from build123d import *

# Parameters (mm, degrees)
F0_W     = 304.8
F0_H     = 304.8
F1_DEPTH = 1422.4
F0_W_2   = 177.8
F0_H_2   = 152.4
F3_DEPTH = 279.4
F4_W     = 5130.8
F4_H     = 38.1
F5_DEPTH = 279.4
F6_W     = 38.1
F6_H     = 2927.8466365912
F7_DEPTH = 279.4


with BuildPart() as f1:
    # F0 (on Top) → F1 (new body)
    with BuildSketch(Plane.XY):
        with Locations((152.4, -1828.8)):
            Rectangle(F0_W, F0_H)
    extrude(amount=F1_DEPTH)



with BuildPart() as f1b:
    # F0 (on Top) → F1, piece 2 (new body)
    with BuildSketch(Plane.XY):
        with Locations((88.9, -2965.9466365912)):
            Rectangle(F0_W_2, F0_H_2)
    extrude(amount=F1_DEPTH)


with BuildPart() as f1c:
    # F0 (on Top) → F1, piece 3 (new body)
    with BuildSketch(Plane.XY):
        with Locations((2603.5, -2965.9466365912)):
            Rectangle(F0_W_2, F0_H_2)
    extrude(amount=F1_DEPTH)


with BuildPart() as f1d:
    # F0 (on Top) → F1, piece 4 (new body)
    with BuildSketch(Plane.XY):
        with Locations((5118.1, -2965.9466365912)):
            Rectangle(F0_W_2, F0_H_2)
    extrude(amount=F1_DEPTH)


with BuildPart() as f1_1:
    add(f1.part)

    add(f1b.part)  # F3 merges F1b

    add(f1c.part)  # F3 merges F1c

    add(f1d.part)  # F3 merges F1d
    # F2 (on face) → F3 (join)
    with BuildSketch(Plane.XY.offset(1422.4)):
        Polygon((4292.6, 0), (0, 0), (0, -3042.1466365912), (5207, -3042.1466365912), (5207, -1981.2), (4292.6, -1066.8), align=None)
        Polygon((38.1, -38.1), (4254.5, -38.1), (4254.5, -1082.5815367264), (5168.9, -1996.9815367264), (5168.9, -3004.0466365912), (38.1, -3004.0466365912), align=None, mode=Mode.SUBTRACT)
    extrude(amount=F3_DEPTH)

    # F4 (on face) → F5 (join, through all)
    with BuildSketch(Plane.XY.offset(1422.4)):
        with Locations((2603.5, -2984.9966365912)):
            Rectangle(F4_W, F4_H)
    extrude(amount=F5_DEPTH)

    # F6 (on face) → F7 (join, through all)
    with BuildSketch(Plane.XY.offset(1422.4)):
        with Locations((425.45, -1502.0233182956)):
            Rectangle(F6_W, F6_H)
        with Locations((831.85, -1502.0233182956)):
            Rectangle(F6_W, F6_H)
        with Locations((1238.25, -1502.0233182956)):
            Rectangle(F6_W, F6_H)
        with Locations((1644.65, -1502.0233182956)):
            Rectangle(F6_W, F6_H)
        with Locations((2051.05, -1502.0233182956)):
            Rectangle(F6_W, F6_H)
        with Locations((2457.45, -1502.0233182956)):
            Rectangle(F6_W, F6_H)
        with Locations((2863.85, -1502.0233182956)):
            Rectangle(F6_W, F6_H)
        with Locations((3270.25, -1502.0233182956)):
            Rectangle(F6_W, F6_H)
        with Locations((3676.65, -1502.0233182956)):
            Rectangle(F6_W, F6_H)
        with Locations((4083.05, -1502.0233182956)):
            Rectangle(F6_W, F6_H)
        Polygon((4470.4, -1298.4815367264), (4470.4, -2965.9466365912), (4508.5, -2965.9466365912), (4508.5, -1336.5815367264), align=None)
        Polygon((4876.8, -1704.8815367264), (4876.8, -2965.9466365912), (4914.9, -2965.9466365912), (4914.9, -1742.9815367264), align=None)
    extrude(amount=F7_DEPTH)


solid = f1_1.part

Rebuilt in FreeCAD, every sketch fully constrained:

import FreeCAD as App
import Part
import Sketcher
Q = App.Units.Quantity


def add_polygon(sketch, points):
    """Adds a closed chain of lines whose ends are joined by coincident constraints."""
    first, n = sketch.GeometryCount, len(points)
    for a, b in zip(points, points[1:] + points[:1]):
        sketch.addGeometry(Part.LineSegment(App.Vector(*a, 0), App.Vector(*b, 0)), False)
    for i in range(n):
        sketch.addConstraint(Sketcher.Constraint("Coincident", first + i, 2, first + (i + 1) % n, 1))

doc = App.newDocument("Part")
body = doc.addObject("PartDesign::Body", "Body")

sketch1 = doc.addObject("Sketcher::SketchObject", "Sketch")
body.addObject(sketch1)
sketch1.AttachmentSupport = (doc.XY_Plane, [""])
sketch1.MapMode = "FlatFace"
add_polygon(sketch1, [(0, -1676), (0, -1981), (305, -1981), (305, -1676)])
sketch1.addConstraint([
    Sketcher.Constraint("Vertical", 0),
    Sketcher.Constraint("Horizontal", 1),
    Sketcher.Constraint("Vertical", 2),
    Sketcher.Constraint("Horizontal", 3),
    Sketcher.Constraint("PointOnObject", 0, 2, -2),
    Sketcher.Constraint("Equal", 3, 0),
    Sketcher.Constraint("DistanceX", 1, 1, 1, 2, Q("12 in")),
    Sketcher.Constraint("DistanceY", 0, 2, -1, 1, Q("78 in")),
])
pad1 = doc.addObject("PartDesign::Pad", "Pad")
body.addObject(pad1)
pad1.Profile = sketch1
pad1.Length = Q("56 in")
body2 = doc.addObject("PartDesign::Body", "Body001")

sketch2 = doc.addObject("Sketcher::SketchObject", "Sketch001")
body2.addObject(sketch2)
sketch2.AttachmentSupport = (doc.getObject("XY_Plane001"), [""])
sketch2.MapMode = "FlatFace"
add_polygon(sketch2, [(0, -2890), (0, -3042), (178, -3042), (178, -2890)])
sketch2.addConstraint([
    Sketcher.Constraint("Vertical", 0),
    Sketcher.Constraint("Horizontal", 1),
    Sketcher.Constraint("Vertical", 2),
    Sketcher.Constraint("Horizontal", 3),
    Sketcher.Constraint("PointOnObject", 0, 2, -2),
    Sketcher.Constraint("DistanceX", 1, 1, 1, 2, Q("7 in")),
    Sketcher.Constraint("DistanceY", 0, 2, 0, 1, Q("6 in")),
    Sketcher.Constraint("DistanceY", 0, 2, -1, 1, Q("3042.146637 mm")),
])
pad2 = doc.addObject("PartDesign::Pad", "Pad001")
body2.addObject(pad2)
pad2.Profile = sketch2
pad2.Length = Q("56 in")
body3 = doc.addObject("PartDesign::Body", "Body002")

sketch3 = doc.addObject("Sketcher::SketchObject", "Sketch002")
body3.addObject(sketch3)
sketch3.AttachmentSupport = (doc.getObject("XY_Plane002"), [""])
sketch3.MapMode = "FlatFace"
add_polygon(sketch3, [(2515, -2890), (2515, -3042), (2692, -3042), (2692, -2890)])
sketch3.addConstraint([
    Sketcher.Constraint("Vertical", 0),
    Sketcher.Constraint("Horizontal", 1),
    Sketcher.Constraint("Vertical", 2),
    Sketcher.Constraint("Horizontal", 3),
    Sketcher.Constraint("DistanceX", 1, 1, 1, 2, Q("7 in")),
    Sketcher.Constraint("DistanceY", 0, 2, 0, 1, Q("6 in")),
    Sketcher.Constraint("DistanceX", -1, 1, 0, 2, Q("99 in")),
    Sketcher.Constraint("DistanceY", 0, 2, -1, 1, Q("3042.146637 mm")),
])
pad3 = doc.addObject("PartDesign::Pad", "Pad002")
body3.addObject(pad3)
pad3.Profile = sketch3
pad3.Length = Q("56 in")
body4 = doc.addObject("PartDesign::Body", "Body003")

sketch4 = doc.addObject("Sketcher::SketchObject", "Sketch003")
body4.addObject(sketch4)
sketch4.AttachmentSupport = (doc.getObject("XY_Plane003"), [""])
sketch4.MapMode = "FlatFace"
add_polygon(sketch4, [(5029, -2890), (5029, -3042), (5207, -3042), (5207, -2890)])
sketch4.addConstraint([
    Sketcher.Constraint("Vertical", 0),
    Sketcher.Constraint("Horizontal", 1),
    Sketcher.Constraint("Vertical", 2),
    Sketcher.Constraint("Horizontal", 3),
    Sketcher.Constraint("DistanceX", 1, 1, 1, 2, Q("7 in")),
    Sketcher.Constraint("DistanceY", 0, 2, 0, 1, Q("6 in")),
    Sketcher.Constraint("DistanceX", -1, 1, 0, 2, Q("198 in")),
    Sketcher.Constraint("DistanceY", 0, 2, -1, 1, Q("3042.146637 mm")),
])
pad4 = doc.addObject("PartDesign::Pad", "Pad003")
body4.addObject(pad4)
pad4.Profile = sketch4
pad4.Length = Q("56 in")
body.AllowCompound = True
doc.recompute()

boolean = doc.addObject("PartDesign::Boolean", "Boolean")
body.addObject(boolean)
boolean.Type = "Fuse"
boolean.addObjects([body2])
doc.recompute()

boolean2 = doc.addObject("PartDesign::Boolean", "Boolean001")
body.addObject(boolean2)
boolean2.Type = "Fuse"
boolean2.addObjects([body3])
doc.recompute()

boolean3 = doc.addObject("PartDesign::Boolean", "Boolean002")
body.addObject(boolean3)
boolean3.Type = "Fuse"
boolean3.addObjects([body4])

sketch5 = doc.addObject("Sketcher::SketchObject", "Sketch004")
body.addObject(sketch5)
sketch5.AttachmentSupport = (doc.XY_Plane, [""])
sketch5.MapMode = "FlatFace"
sketch5.AttachmentOffset = App.Placement(App.Vector(0, 0, 56 * 25.4), App.Rotation())
add_polygon(sketch5, [(4293, 0), (0, 0), (0, -3042), (5207, -3042), (5207, -1981), (4293, -1067)])
add_polygon(sketch5, [(38, -3004), (38, -38), (4254, -38), (4254, -1083), (5169, -1997), (5169, -3004)])
sketch5.addConstraint([
    Sketcher.Constraint("Horizontal", 0),
    Sketcher.Constraint("Vertical", 1),
    Sketcher.Constraint("Horizontal", 2),
    Sketcher.Constraint("Vertical", 3),
    Sketcher.Constraint("Vertical", 5),
    Sketcher.Constraint("Vertical", 6),
    Sketcher.Constraint("Horizontal", 7),
    Sketcher.Constraint("Vertical", 8),
    Sketcher.Constraint("Vertical", 10),
    Sketcher.Constraint("Horizontal", 11),
    Sketcher.Constraint("Coincident", 0, 2, -1, 1),
    Sketcher.Constraint("Parallel", 4, 9),
    Sketcher.Constraint("Equal", 4, 9),
    Sketcher.Constraint("DistanceX", 0, 2, 0, 1, Q("169 in")),
    Sketcher.Constraint("DistanceX", 2, 1, 2, 2, Q("205 in")),
    Sketcher.Constraint("DistanceX", 7, 1, 7, 2, Q("166 in")),
    Sketcher.Constraint("DistanceY", 5, 1, 5, 2, Q("42 in")),
    Sketcher.Constraint("DistanceY", 3, 2, -1, 1, Q("78 in")),
    Sketcher.Constraint("DistanceX", -1, 1, 6, 2, Q("1.5 in")),
    Sketcher.Constraint("DistanceY", 6, 2, -1, 1, Q("1.5 in")),
    Sketcher.Constraint("DistanceY", 2, 2, 10, 2, Q("1.5 in")),
    Sketcher.Constraint("DistanceY", 10, 2, 10, 1, Q("1007.0651 mm")),
    Sketcher.Constraint("DistanceY", 1, 2, 1, 1, Q("3042.146637 mm")),
])
pad5 = doc.addObject("PartDesign::Pad", "Pad004")
body.addObject(pad5)
pad5.Profile = sketch5
pad5.Length = Q("11 in")

sketch6 = doc.addObject("Sketcher::SketchObject", "Sketch005")
body.addObject(sketch6)
sketch6.AttachmentSupport = (doc.XY_Plane, [""])
sketch6.MapMode = "FlatFace"
sketch6.AttachmentOffset = App.Placement(App.Vector(0, 0, 56 * 25.4), App.Rotation())
add_polygon(sketch6, [(38, -2966), (38, -3004), (5169, -3004), (5169, -2966)])
sketch6.addConstraint([
    Sketcher.Constraint("Vertical", 0),
    Sketcher.Constraint("Horizontal", 1),
    Sketcher.Constraint("Vertical", 2),
    Sketcher.Constraint("Horizontal", 3),
    Sketcher.Constraint("DistanceX", 1, 1, 1, 2, Q("202 in")),
    Sketcher.Constraint("DistanceY", 0, 2, 0, 1, Q("1.5 in")),
    Sketcher.Constraint("DistanceX", -1, 1, 0, 2, Q("1.5 in")),
    Sketcher.Constraint("DistanceY", 0, 2, -1, 1, Q("3004.046637 mm")),
])
pad6 = doc.addObject("PartDesign::Pad", "Pad005")
body.addObject(pad6)
pad6.Profile = sketch6
pad6.Length = Q("11 in")

sketch7 = doc.addObject("Sketcher::SketchObject", "Sketch006")
body.addObject(sketch7)
sketch7.AttachmentSupport = (doc.XY_Plane, [""])
sketch7.MapMode = "FlatFace"
sketch7.AttachmentOffset = App.Placement(App.Vector(0, 0, 56 * 25.4), App.Rotation())
add_polygon(sketch7, [(406, -38), (406, -2966), (444, -2966), (444, -38)])
add_polygon(sketch7, [(813, -38), (813, -2966), (851, -2966), (851, -38)])
add_polygon(sketch7, [(1219, -38), (1219, -2966), (1257, -2966), (1257, -38)])
add_polygon(sketch7, [(1626, -38), (1626, -2966), (1664, -2966), (1664, -38)])
add_polygon(sketch7, [(2032, -38), (2032, -2966), (2070, -2966), (2070, -38)])
add_polygon(sketch7, [(2438, -38), (2438, -2966), (2476, -2966), (2476, -38)])
add_polygon(sketch7, [(2845, -38), (2845, -2966), (2883, -2966), (2883, -38)])
add_polygon(sketch7, [(3251, -38), (3251, -2966), (3289, -2966), (3289, -38)])
add_polygon(sketch7, [(3658, -38), (3658, -2966), (3696, -2966), (3696, -38)])
add_polygon(sketch7, [(4064, -38), (4064, -2966), (4102, -2966), (4102, -38)])
add_polygon(sketch7, [(4470, -1298), (4470, -2966), (4508, -2966), (4508, -1337)])
add_polygon(sketch7, [(4877, -1705), (4877, -2966), (4915, -2966), (4915, -1743)])
sketch7.addConstraint([
    Sketcher.Constraint("Vertical", 0),
    Sketcher.Constraint("Horizontal", 1),
    Sketcher.Constraint("Vertical", 2),
    Sketcher.Constraint("Horizontal", 3),
    Sketcher.Constraint("Vertical", 4),
    Sketcher.Constraint("Horizontal", 5),
    Sketcher.Constraint("Vertical", 6),
    Sketcher.Constraint("Horizontal", 7),
    Sketcher.Constraint("Vertical", 8),
    Sketcher.Constraint("Horizontal", 9),
    Sketcher.Constraint("Vertical", 10),
    Sketcher.Constraint("Horizontal", 11),
    Sketcher.Constraint("Vertical", 12),
    Sketcher.Constraint("Horizontal", 13),
    Sketcher.Constraint("Vertical", 14),
    Sketcher.Constraint("Horizontal", 15),
    Sketcher.Constraint("Vertical", 16),
    Sketcher.Constraint("Horizontal", 17),
    Sketcher.Constraint("Vertical", 18),
    Sketcher.Constraint("Horizontal", 19),
    Sketcher.Constraint("Vertical", 20),
    Sketcher.Constraint("Horizontal", 21),
    Sketcher.Constraint("Vertical", 22),
    Sketcher.Constraint("Horizontal", 23),
    Sketcher.Constraint("Vertical", 24),
    Sketcher.Constraint("Horizontal", 25),
    Sketcher.Constraint("Vertical", 26),
    Sketcher.Constraint("Horizontal", 27),
    Sketcher.Constraint("Vertical", 28),
    Sketcher.Constraint("Horizontal", 29),
    Sketcher.Constraint("Vertical", 30),
    Sketcher.Constraint("Horizontal", 31),
    Sketcher.Constraint("Vertical", 32),
    Sketcher.Constraint("Horizontal", 33),
    Sketcher.Constraint("Vertical", 34),
    Sketcher.Constraint("Horizontal", 35),
    Sketcher.Constraint("Vertical", 36),
    Sketcher.Constraint("Horizontal", 37),
    Sketcher.Constraint("Vertical", 38),
    Sketcher.Constraint("Horizontal", 39),
    Sketcher.Constraint("Vertical", 40),
    Sketcher.Constraint("Horizontal", 41),
    Sketcher.Constraint("Vertical", 42),
    Sketcher.Constraint("Vertical", 44),
    Sketcher.Constraint("Horizontal", 45),
    Sketcher.Constraint("Vertical", 46),
    Sketcher.Constraint("Parallel", 43, 47),
    Sketcher.Constraint("Horizontal", 1, 2, 4, 2),
    Sketcher.Constraint("Horizontal", 3, 2, 6, 2),
    Sketcher.Constraint("Horizontal", 5, 2, 8, 2),
    Sketcher.Constraint("Horizontal", 7, 2, 10, 2),
    Sketcher.Constraint("Horizontal", 9, 2, 12, 2),
    Sketcher.Constraint("Horizontal", 11, 2, 14, 2),
    Sketcher.Constraint("Horizontal", 13, 2, 16, 2),
    Sketcher.Constraint("Horizontal", 15, 2, 18, 2),
    Sketcher.Constraint("Horizontal", 17, 2, 20, 2),
    Sketcher.Constraint("Horizontal", 19, 2, 22, 2),
    Sketcher.Constraint("Horizontal", 21, 2, 24, 2),
    Sketcher.Constraint("Horizontal", 23, 2, 26, 2),
    Sketcher.Constraint("Horizontal", 25, 2, 28, 2),
    Sketcher.Constraint("Horizontal", 27, 2, 30, 2),
    Sketcher.Constraint("Horizontal", 29, 2, 32, 2),
    Sketcher.Constraint("Horizontal", 31, 2, 34, 2),
    Sketcher.Constraint("Horizontal", 33, 2, 36, 2),
    Sketcher.Constraint("Horizontal", 35, 2, 38, 2),
    Sketcher.Constraint("Horizontal", 37, 2, 40, 2),
    Sketcher.Constraint("Horizontal", 41, 2, 44, 2),
    Sketcher.Constraint("Equal", 3, 5),
    Sketcher.Constraint("Equal", 7, 9),
    Sketcher.Constraint("Equal", 11, 13),
    Sketcher.Constraint("Equal", 15, 17),
    Sketcher.Constraint("Equal", 19, 21),
    Sketcher.Constraint("Equal", 23, 25),
    Sketcher.Constraint("Equal", 27, 29),
    Sketcher.Constraint("Equal", 31, 33),
    Sketcher.Constraint("Equal", 35, 37),
    Sketcher.Constraint("Equal", 39, 41),
    Sketcher.Constraint("Equal", 41, 45),
    Sketcher.Constraint("DistanceX", 1, 1, 1, 2, Q("1.5 in")),
    Sketcher.Constraint("DistanceX", -1, 1, 0, 2, Q("16 in")),
    Sketcher.Constraint("DistanceX", -1, 1, 4, 2, Q("32 in")),
    Sketcher.Constraint("DistanceX", -1, 1, 8, 2, Q("48 in")),
    Sketcher.Constraint("DistanceX", -1, 1, 12, 2, Q("64 in")),
    Sketcher.Constraint("DistanceX", -1, 1, 16, 2, Q("80 in")),
    Sketcher.Constraint("DistanceX", -1, 1, 20, 2, Q("96 in")),
    Sketcher.Constraint("DistanceX", -1, 1, 24, 2, Q("112 in")),
    Sketcher.Constraint("DistanceX", -1, 1, 28, 2, Q("128 in")),
    Sketcher.Constraint("DistanceX", -1, 1, 32, 2, Q("144 in")),
    Sketcher.Constraint("DistanceX", -1, 1, 36, 2, Q("160 in")),
    Sketcher.Constraint("DistanceX", -1, 1, 40, 2, Q("176 in")),
    Sketcher.Constraint("DistanceX", -1, 1, 44, 2, Q("192 in")),
    Sketcher.Constraint("Angle", 43, Q("135 deg")),
    Sketcher.Constraint("DistanceY", 46, 2, 42, 2, Q("16 in")),
    Sketcher.Constraint("DistanceY", 2, 2, -1, 1, Q("1.5 in")),
    Sketcher.Constraint("DistanceY", 40, 2, 40, 1, Q("1667.4651 mm")),
    Sketcher.Constraint("DistanceY", 0, 2, 0, 1, Q("2927.846637 mm")),
])
pad7 = doc.addObject("PartDesign::Pad", "Pad006")
body.addObject(pad7)
pad7.Profile = sketch7
pad7.Length = Q("11 in")

doc.recompute()
